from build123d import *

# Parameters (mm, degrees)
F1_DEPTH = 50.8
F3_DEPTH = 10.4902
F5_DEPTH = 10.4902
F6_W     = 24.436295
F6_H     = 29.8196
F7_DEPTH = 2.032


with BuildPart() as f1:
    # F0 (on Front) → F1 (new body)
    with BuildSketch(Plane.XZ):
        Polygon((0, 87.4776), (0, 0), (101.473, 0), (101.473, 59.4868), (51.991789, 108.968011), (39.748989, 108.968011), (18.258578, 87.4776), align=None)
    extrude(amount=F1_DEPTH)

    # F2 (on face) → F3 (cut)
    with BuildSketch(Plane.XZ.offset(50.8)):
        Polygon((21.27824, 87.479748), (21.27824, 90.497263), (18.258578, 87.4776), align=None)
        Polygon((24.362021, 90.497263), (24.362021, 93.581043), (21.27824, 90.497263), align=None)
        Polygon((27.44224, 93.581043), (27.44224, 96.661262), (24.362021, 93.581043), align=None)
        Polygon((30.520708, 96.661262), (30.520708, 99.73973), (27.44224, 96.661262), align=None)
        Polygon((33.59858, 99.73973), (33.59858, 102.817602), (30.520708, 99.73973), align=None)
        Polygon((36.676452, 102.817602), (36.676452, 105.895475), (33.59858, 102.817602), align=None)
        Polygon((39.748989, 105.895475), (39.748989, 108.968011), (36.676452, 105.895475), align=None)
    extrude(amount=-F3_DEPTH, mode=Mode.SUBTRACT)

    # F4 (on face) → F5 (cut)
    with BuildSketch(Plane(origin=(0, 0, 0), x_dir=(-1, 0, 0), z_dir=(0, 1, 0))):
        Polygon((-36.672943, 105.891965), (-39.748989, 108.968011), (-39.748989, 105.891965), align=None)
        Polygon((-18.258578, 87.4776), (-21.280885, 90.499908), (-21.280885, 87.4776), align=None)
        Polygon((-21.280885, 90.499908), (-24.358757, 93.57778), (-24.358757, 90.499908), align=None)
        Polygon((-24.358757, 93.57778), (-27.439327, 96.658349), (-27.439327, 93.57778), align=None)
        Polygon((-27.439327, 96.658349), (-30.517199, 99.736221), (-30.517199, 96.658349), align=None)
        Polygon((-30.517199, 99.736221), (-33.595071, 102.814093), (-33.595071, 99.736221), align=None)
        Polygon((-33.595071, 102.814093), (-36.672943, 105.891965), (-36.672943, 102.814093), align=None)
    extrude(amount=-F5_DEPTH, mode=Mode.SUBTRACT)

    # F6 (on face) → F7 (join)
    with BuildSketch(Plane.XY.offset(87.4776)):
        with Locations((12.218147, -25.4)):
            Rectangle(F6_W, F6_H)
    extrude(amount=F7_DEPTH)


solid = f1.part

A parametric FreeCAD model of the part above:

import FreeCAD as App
import Part
import Sketcher

V = App.Vector
Q = App.Units.Quantity


def add_polygon(sketch, points):
    """Adds a closed chain of lines whose ends are joined by coincident constraints."""
    first, n = sketch.GeometryCount, len(points)
    for a, b in zip(points, points[1:] + points[:1]):
        sketch.addGeometry(Part.LineSegment(App.Vector(*a, 0), App.Vector(*b, 0)), False)
    for i in range(n):
        sketch.addConstraint(Sketcher.Constraint("Coincident", first + i, 2, first + (i + 1) % n, 1))

doc = App.newDocument("Part")
body = doc.addObject("PartDesign::Body", "Body")

# Sketch on XZ plane
sketch1 = body.newObject("Sketcher::SketchObject", "Sketch")
sketch1.AttachmentSupport = (doc.getObject("XZ_Plane"), [""])
sketch1.MapMode = "FlatFace"
add_polygon(sketch1, [(0, 87.4776), (0, 0), (101.473, 0), (101.473, 59.4868), (51.991789, 108.968011), (39.748989, 108.968011), (18.258578, 87.4776)])  # lines 0-6
sketch1.addConstraint([
    Sketcher.Constraint("Vertical", 0),
    Sketcher.Constraint("Horizontal", 1),
    Sketcher.Constraint("Vertical", 2),
    Sketcher.Constraint("Horizontal", 4),
    Sketcher.Constraint("Horizontal", 6),
    Sketcher.Constraint("Coincident", 0, 2, -1, 1),
    Sketcher.Constraint("Perpendicular", 3, 5),
    Sketcher.Constraint("Angle", 3, Q("135 deg")),
    Sketcher.Constraint("DistanceX", 1, 1, 1, 2, Q("3.995 in")),
    Sketcher.Constraint("DistanceX", 4, 2, 4, 1, Q("0.482 in")),
    Sketcher.Constraint("DistanceY", 0, 2, 0, 1, Q("3.444 in")),
    Sketcher.Constraint("DistanceY", 2, 1, 2, 2, Q("2.342 in")),
    Sketcher.Constraint("Distance", 3, Q("2.755 in")),
])
pad1 = body.newObject("PartDesign::Pad", "Pad")
pad1.Profile = sketch1
pad1.Length = Q("2 in")

# Sketch on XZ plane
sketch2 = body.newObject("Sketcher::SketchObject", "Sketch001")
sketch2.AttachmentSupport = (doc.getObject("XZ_Plane"), [""])
sketch2.MapMode = "FlatFace"
sketch2.AttachmentOffset = App.Placement(V(0, 0, 2 * 25.4), App.Rotation())
add_polygon(sketch2, [(21.27824, 87.479748), (21.27824, 90.497263), (18.258578, 87.4776)])  # lines 0-2
add_polygon(sketch2, [(24.362021, 90.497263), (24.362021, 93.581043), (21.27824, 90.497263)])  # lines 3-5
add_polygon(sketch2, [(27.44224, 93.581043), (27.44224, 96.661262), (24.362021, 93.581043)])  # lines 6-8
add_polygon(sketch2, [(30.520708, 96.661262), (30.520708, 99.73973), (27.44224, 96.661262)])  # lines 9-11
add_polygon(sketch2, [(33.59858, 99.73973), (33.59858, 102.817602), (30.520708, 99.73973)])  # lines 12-14
add_polygon(sketch2, [(36.676452, 102.817602), (36.676452, 105.895475), (33.59858, 102.817602)])  # lines 15-17
add_polygon(sketch2, [(39.748989, 105.895475), (39.748989, 108.968011), (36.676452, 105.895475)])  # lines 18-20
sketch2.addConstraint([
    Sketcher.Constraint("Vertical", 0),
    Sketcher.Constraint("Vertical", 3),
    Sketcher.Constraint("Horizontal", 5),
    Sketcher.Constraint("Vertical", 6),
    Sketcher.Constraint("Horizontal", 8),
    Sketcher.Constraint("Vertical", 9),
    Sketcher.Constraint("Horizontal", 11),
    Sketcher.Constraint("Vertical", 12),
    Sketcher.Constraint("Horizontal", 14),
    Sketcher.Constraint("Vertical", 15),
    Sketcher.Constraint("Horizontal", 17),
    Sketcher.Constraint("Vertical", 18),
    Sketcher.Constraint("Horizontal", 20),
    Sketcher.Constraint("Coincident", 4, 2, 0, 2),
    Sketcher.Constraint("Coincident", 7, 2, 3, 2),
    Sketcher.Constraint("Coincident", 10, 2, 6, 2),
    Sketcher.Constraint("Coincident", 13, 2, 9, 2),
    Sketcher.Constraint("Coincident", 16, 2, 12, 2),
    Sketcher.Constraint("Coincident", 19, 2, 15, 2),
    Sketcher.Constraint("Parallel", 1, 4),
    Sketcher.Constraint("Parallel", 4, 7),
    Sketcher.Constraint("Parallel", 7, 10),
    Sketcher.Constraint("Parallel", 10, 13),
    Sketcher.Constraint("Parallel", 13, 16),
    Sketcher.Constraint("Parallel", 16, 19),
    Sketcher.Constraint("Equal", 14, 17),
    Sketcher.Constraint("Equal", 5, 3),
    Sketcher.Constraint("DistanceY", 0, 1, 0, 2, Q("0.1187998 in")),
    Sketcher.Constraint("DistanceY", -1, 1, 1, 2, Q("3.444 in")),
    Sketcher.Constraint("DistanceX", 5, 1, 5, 2, 3.083781),
    Sketcher.Constraint("DistanceX", 8, 1, 8, 2, 3.080219),
    Sketcher.Constraint("DistanceX", 14, 1, 14, 2, 3.077872),
    Sketcher.Constraint("DistanceY", 9, 1, 9, 2, 3.078468),
    Sketcher.Constraint("DistanceY", -1, 1, 12, 2, 102.817602),
    Sketcher.Constraint("DistanceX", 20, 1, 20, 2, 3.072537),
    Sketcher.Constraint("DistanceX", -1, 1, 0, 2, 21.27824),
])
pocket1 = body.newObject("PartDesign::Pocket", "Pocket")
pocket1.Profile = sketch2
pocket1.Length = Q("0.413 in")

# Sketch on XZ plane
sketch3 = body.newObject("Sketcher::SketchObject", "Sketch002")
sketch3.AttachmentSupport = (doc.getObject("XZ_Plane"), [""])
sketch3.MapMode = "FlatFace"
add_polygon(sketch3, [(36.672943, 105.891965), (39.748989, 108.968011), (39.748989, 105.891965)])  # lines 0-2
add_polygon(sketch3, [(18.258578, 87.4776), (21.280885, 90.499908), (21.280885, 87.4776)])  # lines 3-5
add_polygon(sketch3, [(21.280885, 90.499908), (24.358757, 93.57778), (24.358757, 90.499908)])  # lines 6-8
add_polygon(sketch3, [(24.358757, 93.57778), (27.439327, 96.658349), (27.439327, 93.57778)])  # lines 9-11
add_polygon(sketch3, [(27.439327, 96.658349), (30.517199, 99.736221), (30.517199, 96.658349)])  # lines 12-14
add_polygon(sketch3, [(30.517199, 99.736221), (33.595071, 102.814093), (33.595071, 99.736221)])  # lines 15-17
add_polygon(sketch3, [(33.595071, 102.814093), (36.672943, 105.891965), (36.672943, 102.814093)])  # lines 18-20
sketch3.addConstraint([
    Sketcher.Constraint("Vertical", 1),
    Sketcher.Constraint("Horizontal", 2),
    Sketcher.Constraint("Vertical", 4),
    Sketcher.Constraint("Horizontal", 5),
    Sketcher.Constraint("Vertical", 7),
    Sketcher.Constraint("Horizontal", 8),
    Sketcher.Constraint("Vertical", 10),
    Sketcher.Constraint("Horizontal", 11),
    Sketcher.Constraint("Vertical", 13),
    Sketcher.Constraint("Horizontal", 14),
    Sketcher.Constraint("Vertical", 16),
    Sketcher.Constraint("Horizontal", 17),
    Sketcher.Constraint("Vertical", 19),
    Sketcher.Constraint("Horizontal", 20),
    Sketcher.Constraint("Coincident", 8, 2, 3, 2),
    Sketcher.Constraint("Coincident", 11, 2, 6, 2),
    Sketcher.Constraint("Coincident", 14, 2, 9, 2),
    Sketcher.Constraint("Coincident", 17, 2, 12, 2),
    Sketcher.Constraint("Coincident", 18, 2, 2, 2),
    Sketcher.Constraint("Coincident", 20, 2, 15, 2),
    Sketcher.Constraint("Parallel", 0, 3),
    Sketcher.Constraint("Parallel", 3, 6),
    Sketcher.Constraint("Parallel", 6, 9),
    Sketcher.Constraint("Parallel", 9, 12),
    Sketcher.Constraint("Parallel", 12, 15),
    Sketcher.Constraint("Parallel", 15, 18),
    Sketcher.Constraint("Equal", 8, 14),
    Sketcher.Constraint("Equal", 14, 17),
    Sketcher.Constraint("Equal", 17, 20),
    Sketcher.Constraint("Equal", 2, 1),
    Sketcher.Constraint("DistanceY", -1, 1, 4, 2, Q("3.444 in")),
    Sketcher.Constraint("DistanceX", 8, 2, 8, 1, 3.077872),
    Sketcher.Constraint("DistanceX", 11, 2, 11, 1, 3.08057),
    Sketcher.Constraint("DistanceY", 4, 2, 4, 1, 3.022308),
    Sketcher.Constraint("DistanceX", -1, 1, 12, 2, 30.517199),
    Sketcher.Constraint("DistanceX", 2, 2, 2, 1, 3.076046),
])
pocket2 = body.newObject("PartDesign::Pocket", "Pocket001")
pocket2.Profile = sketch3
pocket2.Length = Q("0.413 in")
pocket2.Reversed = True

# Sketch on XY plane
sketch4 = body.newObject("Sketcher::SketchObject", "Sketch003")
sketch4.AttachmentSupport = (doc.getObject("XY_Plane"), [""])
sketch4.MapMode = "FlatFace"
sketch4.AttachmentOffset = App.Placement(V(0, 0, 3.444 * 25.4), App.Rotation())
add_polygon(sketch4, [(0, -10.4902), (0, -40.3098), (24.436294, -40.3098), (24.436294, -10.4902)])  # lines 0-3
sketch4.addConstraint([
    Sketcher.Constraint("Vertical", 0),
    Sketcher.Constraint("Horizontal", 1),
    Sketcher.Constraint("Vertical", 2),
    Sketcher.Constraint("Horizontal", 3),
    Sketcher.Constraint("PointOnObject", 0, 2, -2),
    Sketcher.Constraint("DistanceY", 0, 2, 0, 1, Q("1.174 in")),
    Sketcher.Constraint("DistanceY", 0, 2, -1, 1, Q("1.587 in")),
    Sketcher.Constraint("DistanceX", 1, 1, 1, 2, 24.436295),
])
pad2 = body.newObject("PartDesign::Pad", "Pad001")
pad2.Profile = sketch4
pad2.Length = Q("0.08 in")

doc.recompute()
